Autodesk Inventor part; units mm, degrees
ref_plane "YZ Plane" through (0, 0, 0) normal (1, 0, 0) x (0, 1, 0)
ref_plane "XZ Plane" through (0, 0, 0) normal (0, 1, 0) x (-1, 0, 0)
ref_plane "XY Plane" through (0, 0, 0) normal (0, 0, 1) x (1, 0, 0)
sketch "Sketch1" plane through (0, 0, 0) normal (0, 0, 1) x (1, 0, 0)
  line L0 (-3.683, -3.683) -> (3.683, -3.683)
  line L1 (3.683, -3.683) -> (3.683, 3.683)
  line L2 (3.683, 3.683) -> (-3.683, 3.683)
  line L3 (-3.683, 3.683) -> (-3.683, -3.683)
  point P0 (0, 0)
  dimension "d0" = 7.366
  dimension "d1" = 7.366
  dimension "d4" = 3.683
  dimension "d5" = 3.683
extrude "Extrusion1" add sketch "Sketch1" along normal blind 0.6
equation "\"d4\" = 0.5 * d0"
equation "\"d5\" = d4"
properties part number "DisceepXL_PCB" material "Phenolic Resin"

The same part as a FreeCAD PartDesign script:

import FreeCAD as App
import Part
import Sketcher
from FreeCAD import Vector
Q = App.Units.Quantity


def add_polygon(sketch, points):
    """Adds a closed chain of lines whose ends are joined by coincident constraints."""
    first, n = sketch.GeometryCount, len(points)
    for a, b in zip(points, points[1:] + points[:1]):
        sketch.addGeometry(Part.LineSegment(App.Vector(*a, 0), App.Vector(*b, 0)), False)
    for i in range(n):
        sketch.addConstraint(Sketcher.Constraint("Coincident", first + i, 2, first + (i + 1) % n, 1))

doc = App.newDocument("Part")
body = doc.addObject("PartDesign::Body", "Body")

# Sketch on XY plane
sketch1 = doc.addObject("Sketcher::SketchObject", "Sketch")
body.addObject(sketch1)
sketch1.AttachmentSupport = (doc.XY_Plane, [""])
sketch1.MapMode = "FlatFace"
add_polygon(sketch1, [(-4, 4), (-4, -4), (4, -4), (4, 4)])  # lines 0-3
sketch1.addConstraint([
    Sketcher.Constraint("Vertical", 0),
    Sketcher.Constraint("Horizontal", 1),
    Sketcher.Constraint("Vertical", 2),
    Sketcher.Constraint("Horizontal", 3),
    Sketcher.Constraint("Symmetric", 0, 2, 2, 2, -1, 1),
    Sketcher.Constraint("Equal", 3, 0),
    Sketcher.Constraint("DistanceX", 1, 1, 1, 2, Q("7.366 mm")),
])
pad1 = doc.addObject("PartDesign::Pad", "Pad")
body.addObject(pad1)
pad1.Profile = sketch1
pad1.Length = 0.6

doc.recompute()
